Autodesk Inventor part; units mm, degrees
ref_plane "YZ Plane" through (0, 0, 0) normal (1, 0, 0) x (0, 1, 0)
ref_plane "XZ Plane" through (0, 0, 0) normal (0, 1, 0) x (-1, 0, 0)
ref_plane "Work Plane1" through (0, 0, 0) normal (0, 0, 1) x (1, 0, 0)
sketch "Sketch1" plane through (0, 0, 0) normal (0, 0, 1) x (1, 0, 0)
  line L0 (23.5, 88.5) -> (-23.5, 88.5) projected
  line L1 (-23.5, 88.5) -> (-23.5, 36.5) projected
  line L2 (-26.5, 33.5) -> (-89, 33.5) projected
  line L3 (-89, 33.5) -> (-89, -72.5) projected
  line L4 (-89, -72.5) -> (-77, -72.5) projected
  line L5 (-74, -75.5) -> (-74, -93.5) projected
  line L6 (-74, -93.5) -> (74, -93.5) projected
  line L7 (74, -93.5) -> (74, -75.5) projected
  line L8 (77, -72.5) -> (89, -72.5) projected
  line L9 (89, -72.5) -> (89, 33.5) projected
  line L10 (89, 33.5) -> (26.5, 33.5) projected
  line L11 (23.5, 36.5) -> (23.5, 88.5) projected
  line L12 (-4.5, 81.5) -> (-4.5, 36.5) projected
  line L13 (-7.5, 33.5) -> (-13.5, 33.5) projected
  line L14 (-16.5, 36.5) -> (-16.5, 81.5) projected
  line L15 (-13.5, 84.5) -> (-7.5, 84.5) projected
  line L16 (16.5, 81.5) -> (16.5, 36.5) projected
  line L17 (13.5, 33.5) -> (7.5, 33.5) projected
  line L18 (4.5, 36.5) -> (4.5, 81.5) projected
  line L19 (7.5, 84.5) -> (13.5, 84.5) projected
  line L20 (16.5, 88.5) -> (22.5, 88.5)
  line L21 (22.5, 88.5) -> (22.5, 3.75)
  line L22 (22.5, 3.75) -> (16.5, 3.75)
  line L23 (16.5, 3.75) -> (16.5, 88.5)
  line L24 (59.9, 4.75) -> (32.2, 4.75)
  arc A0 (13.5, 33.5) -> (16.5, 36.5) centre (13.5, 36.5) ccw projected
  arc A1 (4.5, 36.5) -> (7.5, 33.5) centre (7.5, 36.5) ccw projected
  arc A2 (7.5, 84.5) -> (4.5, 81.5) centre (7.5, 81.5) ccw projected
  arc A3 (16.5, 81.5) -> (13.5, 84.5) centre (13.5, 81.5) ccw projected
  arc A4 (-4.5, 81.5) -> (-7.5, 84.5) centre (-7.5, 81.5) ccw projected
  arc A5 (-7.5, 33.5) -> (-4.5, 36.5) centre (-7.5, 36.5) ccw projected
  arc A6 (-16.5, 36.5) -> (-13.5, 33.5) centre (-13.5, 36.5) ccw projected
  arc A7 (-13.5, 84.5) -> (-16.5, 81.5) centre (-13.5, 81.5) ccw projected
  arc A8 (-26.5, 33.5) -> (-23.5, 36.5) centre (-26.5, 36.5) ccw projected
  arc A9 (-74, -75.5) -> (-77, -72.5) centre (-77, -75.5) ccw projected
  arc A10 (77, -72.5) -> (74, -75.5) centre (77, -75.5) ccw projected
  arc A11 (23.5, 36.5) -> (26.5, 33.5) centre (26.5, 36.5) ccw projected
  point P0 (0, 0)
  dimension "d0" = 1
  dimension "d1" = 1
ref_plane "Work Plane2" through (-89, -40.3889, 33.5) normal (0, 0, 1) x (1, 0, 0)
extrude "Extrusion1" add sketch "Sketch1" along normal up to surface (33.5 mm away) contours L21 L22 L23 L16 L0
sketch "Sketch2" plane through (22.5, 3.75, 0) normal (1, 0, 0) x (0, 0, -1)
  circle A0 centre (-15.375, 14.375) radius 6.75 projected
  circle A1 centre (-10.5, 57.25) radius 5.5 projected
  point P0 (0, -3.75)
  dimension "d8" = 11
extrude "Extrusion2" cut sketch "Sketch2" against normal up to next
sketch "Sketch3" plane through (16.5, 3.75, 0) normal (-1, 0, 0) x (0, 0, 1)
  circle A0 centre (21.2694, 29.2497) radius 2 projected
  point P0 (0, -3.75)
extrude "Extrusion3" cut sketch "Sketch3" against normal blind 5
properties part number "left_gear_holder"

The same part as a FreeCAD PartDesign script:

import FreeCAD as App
import Part
import Sketcher

V = App.Vector


def add_polygon(sketch, points):
    """Adds a closed chain of lines whose ends are joined by coincident constraints."""
    first, n = sketch.GeometryCount, len(points)
    for a, b in zip(points, points[1:] + points[:1]):
        sketch.addGeometry(Part.LineSegment(App.Vector(*a, 0), App.Vector(*b, 0)), False)
    for i in range(n):
        sketch.addConstraint(Sketcher.Constraint("Coincident", first + i, 2, first + (i + 1) % n, 1))

doc = App.newDocument("Part")
body = doc.addObject("PartDesign::Body", "Body")

# Sketch on XY plane
sketch1 = body.newObject("Sketcher::SketchObject", "Sketch")
sketch1.AttachmentSupport = (doc.getObject("XY_Plane"), [""])
sketch1.MapMode = "FlatFace"
add_polygon(sketch1, [(22, 4), (22, 88), (16, 88), (16, 4)])  # lines 0-3
sketch1.addConstraint([
    Sketcher.Constraint("Vertical", 0),
    Sketcher.Constraint("Horizontal", 1),
    Sketcher.Constraint("Vertical", 2),
    Sketcher.Constraint("Horizontal", 3),
    Sketcher.Constraint("DistanceX", 1, 2, 1, 1, 6.0),
    Sketcher.Constraint("DistanceY", 0, 1, 0, 2, 84.75),
    Sketcher.Constraint("DistanceX", -1, 1, 0, 2, 22.5),
    Sketcher.Constraint("DistanceY", -1, 1, 0, 2, 88.5),
])
pad1 = body.newObject("PartDesign::Pad", "Pad")
pad1.Profile = sketch1
pad1.Length = 33.5

# Sketch on YZ plane
sketch2 = body.newObject("Sketcher::SketchObject", "Sketch001")
sketch2.AttachmentSupport = (doc.getObject("YZ_Plane"), [""])
sketch2.MapMode = "FlatFace"
sketch2.AttachmentOffset = App.Placement(V(0, 0, 22.5), App.Rotation())
sketch2.addGeometry([
    Part.Circle(V(18, 15, 0), V(0, 0, 1), 7),
    Part.Circle(V(61, 10, 0), V(0, 0, 1), 6),
], False)
sketch2.addConstraint([
    Sketcher.Constraint("Diameter", 1, 11.0),
    Sketcher.Constraint("Diameter", 0, 13.5),
    Sketcher.Constraint("DistanceX", -1, 1, 1, 3, 61.0),
    Sketcher.Constraint("DistanceY", -1, 1, 1, 3, 10.5),
    Sketcher.Constraint("DistanceX", -1, 1, 0, 3, 18.125),
    Sketcher.Constraint("DistanceY", -1, 1, 0, 3, 15.375),
])
pocket1 = body.newObject("PartDesign::Pocket", "Pocket")
pocket1.Profile = sketch2
pocket1.Type = "UpToFirst"

# Sketch on YZ plane
sketch3 = body.newObject("Sketcher::SketchObject", "Sketch002")
sketch3.AttachmentSupport = (doc.getObject("YZ_Plane"), [""])
sketch3.MapMode = "FlatFace"
sketch3.AttachmentOffset = App.Placement(V(0, 0, 16.5), App.Rotation())
sketch3.addGeometry(Part.Circle(V(33, 21.3, 0), V(0, 0, 1), 2), False)
sketch3.addConstraint([
    Sketcher.Constraint("Diameter", 0, 4.0),
    Sketcher.Constraint("DistanceX", -1, 1, 0, 3, 32.9997),
    Sketcher.Constraint("DistanceY", -1, 1, 0, 3, 21.2694),
])
pocket2 = body.newObject("PartDesign::Pocket", "Pocket001")
pocket2.Profile = sketch3
pocket2.Length = 5
pocket2.Reversed = True

doc.recompute()
